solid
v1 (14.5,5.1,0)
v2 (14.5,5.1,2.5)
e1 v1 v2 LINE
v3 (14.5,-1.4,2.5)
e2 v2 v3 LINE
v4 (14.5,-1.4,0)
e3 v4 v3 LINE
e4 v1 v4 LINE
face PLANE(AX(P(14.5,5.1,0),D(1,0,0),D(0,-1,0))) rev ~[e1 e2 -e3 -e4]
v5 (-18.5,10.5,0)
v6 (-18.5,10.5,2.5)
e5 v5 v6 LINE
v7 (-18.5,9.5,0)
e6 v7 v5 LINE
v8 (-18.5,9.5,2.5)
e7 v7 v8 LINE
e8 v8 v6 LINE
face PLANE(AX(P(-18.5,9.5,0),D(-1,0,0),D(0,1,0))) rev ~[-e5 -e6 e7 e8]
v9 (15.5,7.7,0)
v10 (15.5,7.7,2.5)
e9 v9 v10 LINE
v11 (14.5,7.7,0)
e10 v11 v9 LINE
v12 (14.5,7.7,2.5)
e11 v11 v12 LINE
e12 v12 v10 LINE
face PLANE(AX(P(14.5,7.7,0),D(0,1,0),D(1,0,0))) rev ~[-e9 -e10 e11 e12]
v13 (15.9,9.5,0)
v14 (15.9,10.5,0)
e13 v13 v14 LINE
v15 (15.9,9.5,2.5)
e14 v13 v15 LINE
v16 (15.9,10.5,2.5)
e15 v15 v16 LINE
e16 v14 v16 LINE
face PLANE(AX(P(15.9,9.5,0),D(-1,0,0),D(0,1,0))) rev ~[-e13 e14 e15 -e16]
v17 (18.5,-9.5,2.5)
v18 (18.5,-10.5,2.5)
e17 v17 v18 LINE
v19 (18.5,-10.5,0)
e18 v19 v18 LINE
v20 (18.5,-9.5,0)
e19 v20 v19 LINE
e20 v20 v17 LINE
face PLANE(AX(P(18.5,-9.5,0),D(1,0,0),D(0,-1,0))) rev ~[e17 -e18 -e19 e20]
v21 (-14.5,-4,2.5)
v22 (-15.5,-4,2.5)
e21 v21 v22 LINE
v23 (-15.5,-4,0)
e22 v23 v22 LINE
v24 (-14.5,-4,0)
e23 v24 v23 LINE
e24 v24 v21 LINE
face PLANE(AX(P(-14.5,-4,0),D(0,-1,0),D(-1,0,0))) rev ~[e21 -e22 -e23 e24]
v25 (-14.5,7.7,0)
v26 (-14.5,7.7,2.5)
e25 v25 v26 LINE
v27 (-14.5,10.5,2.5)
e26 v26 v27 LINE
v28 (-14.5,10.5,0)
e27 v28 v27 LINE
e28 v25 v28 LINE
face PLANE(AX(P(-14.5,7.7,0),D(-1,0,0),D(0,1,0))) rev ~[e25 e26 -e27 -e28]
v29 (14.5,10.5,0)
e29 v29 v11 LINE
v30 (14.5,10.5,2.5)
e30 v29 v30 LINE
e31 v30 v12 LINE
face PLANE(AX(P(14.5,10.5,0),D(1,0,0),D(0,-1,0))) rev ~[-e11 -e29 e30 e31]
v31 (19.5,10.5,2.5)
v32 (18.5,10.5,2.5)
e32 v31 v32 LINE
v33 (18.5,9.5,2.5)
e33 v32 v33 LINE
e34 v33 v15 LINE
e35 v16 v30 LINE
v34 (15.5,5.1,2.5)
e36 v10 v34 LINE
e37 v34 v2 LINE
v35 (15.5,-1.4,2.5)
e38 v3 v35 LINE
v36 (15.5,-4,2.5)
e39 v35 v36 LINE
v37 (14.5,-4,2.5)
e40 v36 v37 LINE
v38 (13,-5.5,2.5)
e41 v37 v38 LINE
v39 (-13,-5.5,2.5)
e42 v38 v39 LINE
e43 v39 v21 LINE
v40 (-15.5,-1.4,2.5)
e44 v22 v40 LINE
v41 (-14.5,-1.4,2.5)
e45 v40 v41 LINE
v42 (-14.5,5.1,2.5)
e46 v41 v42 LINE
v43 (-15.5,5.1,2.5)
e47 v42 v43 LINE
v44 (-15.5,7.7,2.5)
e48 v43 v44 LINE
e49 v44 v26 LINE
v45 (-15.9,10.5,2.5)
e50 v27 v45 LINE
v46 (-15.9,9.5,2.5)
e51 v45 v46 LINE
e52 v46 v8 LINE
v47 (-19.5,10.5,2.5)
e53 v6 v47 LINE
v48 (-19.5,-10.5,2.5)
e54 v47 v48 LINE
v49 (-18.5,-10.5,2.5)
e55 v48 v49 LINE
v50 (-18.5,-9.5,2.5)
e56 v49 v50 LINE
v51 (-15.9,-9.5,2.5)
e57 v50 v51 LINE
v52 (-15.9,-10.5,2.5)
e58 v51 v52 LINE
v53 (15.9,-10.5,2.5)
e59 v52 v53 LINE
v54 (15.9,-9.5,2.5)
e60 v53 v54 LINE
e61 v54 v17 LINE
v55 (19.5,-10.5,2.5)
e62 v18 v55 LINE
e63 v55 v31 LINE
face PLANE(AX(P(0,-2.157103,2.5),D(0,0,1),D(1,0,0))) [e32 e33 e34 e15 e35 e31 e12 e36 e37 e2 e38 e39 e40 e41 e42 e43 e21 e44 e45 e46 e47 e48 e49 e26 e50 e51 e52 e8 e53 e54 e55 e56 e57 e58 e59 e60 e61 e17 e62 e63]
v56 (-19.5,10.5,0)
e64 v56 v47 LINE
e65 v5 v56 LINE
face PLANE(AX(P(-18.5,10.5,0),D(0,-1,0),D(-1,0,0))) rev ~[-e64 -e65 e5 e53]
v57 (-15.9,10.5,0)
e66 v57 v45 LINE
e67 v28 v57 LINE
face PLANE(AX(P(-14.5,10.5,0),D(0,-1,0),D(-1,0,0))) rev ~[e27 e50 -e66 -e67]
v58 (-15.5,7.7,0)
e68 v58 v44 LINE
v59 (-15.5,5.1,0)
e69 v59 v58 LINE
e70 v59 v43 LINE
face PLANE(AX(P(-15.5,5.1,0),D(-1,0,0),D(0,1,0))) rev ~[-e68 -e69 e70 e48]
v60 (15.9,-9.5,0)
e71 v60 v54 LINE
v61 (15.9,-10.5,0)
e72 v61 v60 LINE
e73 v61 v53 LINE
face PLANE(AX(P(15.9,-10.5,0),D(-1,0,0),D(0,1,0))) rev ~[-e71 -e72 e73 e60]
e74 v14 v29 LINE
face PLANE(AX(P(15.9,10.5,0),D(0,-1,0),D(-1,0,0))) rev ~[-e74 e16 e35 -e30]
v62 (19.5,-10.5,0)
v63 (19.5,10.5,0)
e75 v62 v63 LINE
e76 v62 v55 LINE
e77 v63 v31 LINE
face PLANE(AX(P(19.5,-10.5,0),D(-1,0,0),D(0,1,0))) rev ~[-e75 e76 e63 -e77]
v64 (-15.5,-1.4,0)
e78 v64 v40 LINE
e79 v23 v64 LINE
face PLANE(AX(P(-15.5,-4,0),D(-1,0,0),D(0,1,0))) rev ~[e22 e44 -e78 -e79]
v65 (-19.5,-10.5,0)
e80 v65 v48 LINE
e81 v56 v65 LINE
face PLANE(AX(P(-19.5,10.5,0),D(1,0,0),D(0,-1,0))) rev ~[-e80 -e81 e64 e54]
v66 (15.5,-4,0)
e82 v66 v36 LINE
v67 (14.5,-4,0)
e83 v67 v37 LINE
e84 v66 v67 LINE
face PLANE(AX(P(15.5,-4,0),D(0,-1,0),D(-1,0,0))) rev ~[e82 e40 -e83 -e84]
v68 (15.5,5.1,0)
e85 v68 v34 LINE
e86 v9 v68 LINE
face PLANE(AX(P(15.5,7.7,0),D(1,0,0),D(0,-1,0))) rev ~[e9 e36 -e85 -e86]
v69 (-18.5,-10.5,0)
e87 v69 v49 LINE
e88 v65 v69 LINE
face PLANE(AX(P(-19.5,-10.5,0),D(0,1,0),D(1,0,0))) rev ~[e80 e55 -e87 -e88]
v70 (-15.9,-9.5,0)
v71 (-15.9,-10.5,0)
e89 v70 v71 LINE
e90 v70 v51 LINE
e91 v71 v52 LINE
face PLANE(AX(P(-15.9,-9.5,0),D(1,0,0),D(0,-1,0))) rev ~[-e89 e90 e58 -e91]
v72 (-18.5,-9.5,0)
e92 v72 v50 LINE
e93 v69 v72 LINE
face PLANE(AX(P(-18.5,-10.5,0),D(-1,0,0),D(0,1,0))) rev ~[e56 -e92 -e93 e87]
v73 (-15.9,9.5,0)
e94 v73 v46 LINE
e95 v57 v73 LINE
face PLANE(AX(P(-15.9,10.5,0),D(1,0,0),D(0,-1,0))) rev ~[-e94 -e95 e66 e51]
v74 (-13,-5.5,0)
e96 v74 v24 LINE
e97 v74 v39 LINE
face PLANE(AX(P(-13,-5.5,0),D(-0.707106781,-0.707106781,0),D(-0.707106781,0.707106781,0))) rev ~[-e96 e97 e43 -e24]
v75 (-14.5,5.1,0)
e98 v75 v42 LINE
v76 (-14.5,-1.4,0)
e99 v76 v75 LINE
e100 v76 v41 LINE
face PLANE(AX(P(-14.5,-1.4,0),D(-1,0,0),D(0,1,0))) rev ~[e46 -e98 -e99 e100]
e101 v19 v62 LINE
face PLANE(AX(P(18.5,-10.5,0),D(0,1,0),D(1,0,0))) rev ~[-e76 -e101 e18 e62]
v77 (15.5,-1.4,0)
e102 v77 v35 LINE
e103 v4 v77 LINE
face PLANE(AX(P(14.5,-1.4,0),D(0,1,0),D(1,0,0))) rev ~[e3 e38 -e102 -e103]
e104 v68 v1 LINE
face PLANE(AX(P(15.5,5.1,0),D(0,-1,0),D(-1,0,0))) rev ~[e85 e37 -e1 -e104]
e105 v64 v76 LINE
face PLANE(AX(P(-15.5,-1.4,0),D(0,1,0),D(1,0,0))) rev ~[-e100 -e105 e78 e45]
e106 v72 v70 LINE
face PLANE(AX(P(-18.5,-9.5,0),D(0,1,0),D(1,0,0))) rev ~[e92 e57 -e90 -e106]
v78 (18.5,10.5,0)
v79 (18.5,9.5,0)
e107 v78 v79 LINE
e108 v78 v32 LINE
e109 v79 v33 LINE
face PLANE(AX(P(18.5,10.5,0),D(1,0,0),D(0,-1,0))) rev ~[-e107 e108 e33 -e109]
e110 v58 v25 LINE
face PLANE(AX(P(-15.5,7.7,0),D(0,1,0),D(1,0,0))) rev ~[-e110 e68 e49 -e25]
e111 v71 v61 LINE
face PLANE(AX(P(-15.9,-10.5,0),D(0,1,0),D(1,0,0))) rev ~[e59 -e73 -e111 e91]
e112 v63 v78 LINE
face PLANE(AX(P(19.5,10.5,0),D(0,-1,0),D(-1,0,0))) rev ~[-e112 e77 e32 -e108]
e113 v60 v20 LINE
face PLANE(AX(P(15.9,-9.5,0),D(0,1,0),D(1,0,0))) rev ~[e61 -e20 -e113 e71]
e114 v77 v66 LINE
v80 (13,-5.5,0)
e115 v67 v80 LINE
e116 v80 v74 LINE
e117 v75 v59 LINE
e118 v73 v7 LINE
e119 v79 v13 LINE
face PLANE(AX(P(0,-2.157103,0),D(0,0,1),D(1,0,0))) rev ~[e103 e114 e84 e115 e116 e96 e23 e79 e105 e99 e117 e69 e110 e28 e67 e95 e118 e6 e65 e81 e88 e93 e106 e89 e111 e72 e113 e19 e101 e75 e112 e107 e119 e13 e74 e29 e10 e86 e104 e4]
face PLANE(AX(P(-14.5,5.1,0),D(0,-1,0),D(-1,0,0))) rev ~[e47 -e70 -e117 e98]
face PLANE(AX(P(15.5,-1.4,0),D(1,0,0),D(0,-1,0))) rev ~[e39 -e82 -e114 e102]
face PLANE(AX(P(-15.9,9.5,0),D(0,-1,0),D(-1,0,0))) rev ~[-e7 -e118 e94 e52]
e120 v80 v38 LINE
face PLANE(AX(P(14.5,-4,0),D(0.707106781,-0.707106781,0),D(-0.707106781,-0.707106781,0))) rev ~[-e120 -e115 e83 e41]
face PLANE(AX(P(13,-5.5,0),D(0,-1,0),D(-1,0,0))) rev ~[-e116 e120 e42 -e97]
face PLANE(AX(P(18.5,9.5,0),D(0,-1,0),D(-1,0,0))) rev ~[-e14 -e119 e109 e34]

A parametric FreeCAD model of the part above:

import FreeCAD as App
import Part
import Sketcher

V = App.Vector


def add_polygon(sketch, points):
    """Adds a closed chain of lines whose ends are joined by coincident constraints."""
    first, n = sketch.GeometryCount, len(points)
    for a, b in zip(points, points[1:] + points[:1]):
        sketch.addGeometry(Part.LineSegment(App.Vector(*a, 0), App.Vector(*b, 0)), False)
    for i in range(n):
        sketch.addConstraint(Sketcher.Constraint("Coincident", first + i, 2, first + (i + 1) % n, 1))

doc = App.newDocument("Part")
params = doc.addObject("Spreadsheet::Sheet", "Params")
for row, (alias, value) in enumerate([
    ("sketch1_width", "1 mm"),
    ("sketch1_width2", "26 mm"),
    ("sketch1_height", "21 mm"),
    ("sketch1_width3", "2.6 mm"),
    ("sketch1_width4", "1.4 mm"),
    ("pad1_length", "2.5 mm"),
], start=1):
    params.set(f"A{row}", alias)
    params.set(f"B{row}", "=" + value)
    params.setAlias(f"B{row}", alias)

body = doc.addObject("PartDesign::Body", "Body")

# Sketch on XY plane
sketch1 = body.newObject("Sketcher::SketchObject", "Sketch")
sketch1.AttachmentSupport = (doc.getObject("XY_Plane"), [""])
sketch1.MapMode = "FlatFace"
add_polygon(sketch1, [(18.5, -10.5), (19.5, -10.5), (19.5, 10.5), (18.5, 10.5), (18.5, 9.5), (15.9, 9.5), (15.9, 10.5), (14.5, 10.5), (14.5, 7.7), (15.5, 7.7), (15.5, 5.1), (14.5, 5.1), (14.5, -1.4), (15.5, -1.4), (15.5, -4), (14.5, -4), (13, -5.5), (-13, -5.5), (-14.5, -4), (-15.5, -4), (-15.5, -1.4), (-14.5, -1.4), (-14.5, 5.1), (-15.5, 5.1), (-15.5, 7.7), (-14.5, 7.7), (-14.5, 10.5), (-15.9, 10.5), (-15.9, 9.5), (-18.5, 9.5), (-18.5, 10.5), (-19.5, 10.5), (-19.5, -10.5), (-18.5, -10.5), (-18.5, -9.5), (-15.9, -9.5), (-15.9, -10.5), (15.9, -10.5), (15.9, -9.5), (18.5, -9.5)])  # lines 0-39
sketch1.addConstraint([
    Sketcher.Constraint("Horizontal", 0),
    Sketcher.Constraint("Vertical", 1),
    Sketcher.Constraint("Horizontal", 2),
    Sketcher.Constraint("Vertical", 3),
    Sketcher.Constraint("Horizontal", 4),
    Sketcher.Constraint("Vertical", 5),
    Sketcher.Constraint("Horizontal", 6),
    Sketcher.Constraint("Vertical", 7),
    Sketcher.Constraint("Horizontal", 8),
    Sketcher.Constraint("Vertical", 9),
    Sketcher.Constraint("Horizontal", 10),
    Sketcher.Constraint("Vertical", 11),
    Sketcher.Constraint("Horizontal", 12),
    Sketcher.Constraint("Vertical", 13),
    Sketcher.Constraint("Horizontal", 14),
    Sketcher.Constraint("Horizontal", 16),
    Sketcher.Constraint("Horizontal", 18),
    Sketcher.Constraint("Vertical", 19),
    Sketcher.Constraint("Horizontal", 20),
    Sketcher.Constraint("Vertical", 21),
    Sketcher.Constraint("Horizontal", 22),
    Sketcher.Constraint("Vertical", 23),
    Sketcher.Constraint("Horizontal", 24),
    Sketcher.Constraint("Vertical", 25),
    Sketcher.Constraint("Horizontal", 26),
    Sketcher.Constraint("Vertical", 27),
    Sketcher.Constraint("Horizontal", 28),
    Sketcher.Constraint("Vertical", 29),
    Sketcher.Constraint("Horizontal", 30),
    Sketcher.Constraint("Vertical", 31),
    Sketcher.Constraint("Horizontal", 32),
    Sketcher.Constraint("Vertical", 33),
    Sketcher.Constraint("Horizontal", 34),
    Sketcher.Constraint("Vertical", 35),
    Sketcher.Constraint("Horizontal", 36),
    Sketcher.Constraint("Vertical", 37),
    Sketcher.Constraint("Horizontal", 38),
    Sketcher.Constraint("Vertical", 39),
    Sketcher.Constraint("Symmetric", 0, 2, 30, 2, -1, 1),
    Sketcher.Constraint("Symmetric", 2, 2, 32, 2, -1, 1),
    Sketcher.Constraint("Symmetric", 4, 2, 34, 2, -1, 1),
    Sketcher.Constraint("Symmetric", 26, 2, 36, 2, -1, 1),
    Sketcher.Constraint("Symmetric", 28, 2, 38, 2, -1, 1),
    Sketcher.Constraint("Symmetric", 14, 2, 17, 2, -2),
    Sketcher.Constraint("Symmetric", 12, 2, 19, 2, -2),
    Sketcher.Constraint("Symmetric", 10, 2, 21, 2, -2),
    Sketcher.Constraint("Symmetric", 8, 2, 23, 2, -2),
    Sketcher.Constraint("Symmetric", 6, 2, 25, 2, -2),
    Sketcher.Constraint("Symmetric", 4, 2, 27, 2, -2),
    Sketcher.Constraint("Symmetric", 2, 2, 29, 2, -2),
    Sketcher.Constraint("Perpendicular", 15, 17),
    Sketcher.Constraint("Horizontal", 2, 2, 5, 2),
    Sketcher.Constraint("Vertical", 7, 2, 10, 2),
    Sketcher.Constraint("Vertical", 9, 2, 12, 2),
    Sketcher.Constraint("Vertical", 11, 2, 14, 2),
    Sketcher.Constraint("Equal", 2, 8),
    Sketcher.Constraint("Equal", 32, 3),
    Sketcher.Constraint("Equal", 38, 9),
    Sketcher.Constraint("Equal", 9, 13),
    Sketcher.Constraint("Equal", 15, 17),
    Sketcher.Constraint("DistanceX", 0, 1, 0, 2, 1.0),
    Sketcher.Constraint("DistanceX", 16, 2, 16, 1, 26.0),
    Sketcher.Constraint("DistanceY", 1, 1, 1, 2, 21.0),
    Sketcher.Constraint("DistanceX", 4, 2, 4, 1, 2.6),
    Sketcher.Constraint("DistanceX", 6, 2, 6, 1, 1.4),
    Sketcher.Constraint("DistanceX", 36, 1, 36, 2, 31.8),
    Sketcher.Constraint("DistanceY", 7, 2, 7, 1, 2.8),
    Sketcher.Constraint("DistanceY", 11, 2, 11, 1, 6.5),
])
sketch1.setExpression("Constraints[100]", "Params.sketch1_width")
sketch1.setExpression("Constraints[101]", "Params.sketch1_width2")
sketch1.setExpression("Constraints[102]", "Params.sketch1_height")
sketch1.setExpression("Constraints[103]", "Params.sketch1_width3")
sketch1.setExpression("Constraints[104]", "Params.sketch1_width4")
pad1 = body.newObject("PartDesign::Pad", "Pad")
pad1.Profile = sketch1
pad1.setExpression("Length", "Params.pad1_length")

doc.recompute()
